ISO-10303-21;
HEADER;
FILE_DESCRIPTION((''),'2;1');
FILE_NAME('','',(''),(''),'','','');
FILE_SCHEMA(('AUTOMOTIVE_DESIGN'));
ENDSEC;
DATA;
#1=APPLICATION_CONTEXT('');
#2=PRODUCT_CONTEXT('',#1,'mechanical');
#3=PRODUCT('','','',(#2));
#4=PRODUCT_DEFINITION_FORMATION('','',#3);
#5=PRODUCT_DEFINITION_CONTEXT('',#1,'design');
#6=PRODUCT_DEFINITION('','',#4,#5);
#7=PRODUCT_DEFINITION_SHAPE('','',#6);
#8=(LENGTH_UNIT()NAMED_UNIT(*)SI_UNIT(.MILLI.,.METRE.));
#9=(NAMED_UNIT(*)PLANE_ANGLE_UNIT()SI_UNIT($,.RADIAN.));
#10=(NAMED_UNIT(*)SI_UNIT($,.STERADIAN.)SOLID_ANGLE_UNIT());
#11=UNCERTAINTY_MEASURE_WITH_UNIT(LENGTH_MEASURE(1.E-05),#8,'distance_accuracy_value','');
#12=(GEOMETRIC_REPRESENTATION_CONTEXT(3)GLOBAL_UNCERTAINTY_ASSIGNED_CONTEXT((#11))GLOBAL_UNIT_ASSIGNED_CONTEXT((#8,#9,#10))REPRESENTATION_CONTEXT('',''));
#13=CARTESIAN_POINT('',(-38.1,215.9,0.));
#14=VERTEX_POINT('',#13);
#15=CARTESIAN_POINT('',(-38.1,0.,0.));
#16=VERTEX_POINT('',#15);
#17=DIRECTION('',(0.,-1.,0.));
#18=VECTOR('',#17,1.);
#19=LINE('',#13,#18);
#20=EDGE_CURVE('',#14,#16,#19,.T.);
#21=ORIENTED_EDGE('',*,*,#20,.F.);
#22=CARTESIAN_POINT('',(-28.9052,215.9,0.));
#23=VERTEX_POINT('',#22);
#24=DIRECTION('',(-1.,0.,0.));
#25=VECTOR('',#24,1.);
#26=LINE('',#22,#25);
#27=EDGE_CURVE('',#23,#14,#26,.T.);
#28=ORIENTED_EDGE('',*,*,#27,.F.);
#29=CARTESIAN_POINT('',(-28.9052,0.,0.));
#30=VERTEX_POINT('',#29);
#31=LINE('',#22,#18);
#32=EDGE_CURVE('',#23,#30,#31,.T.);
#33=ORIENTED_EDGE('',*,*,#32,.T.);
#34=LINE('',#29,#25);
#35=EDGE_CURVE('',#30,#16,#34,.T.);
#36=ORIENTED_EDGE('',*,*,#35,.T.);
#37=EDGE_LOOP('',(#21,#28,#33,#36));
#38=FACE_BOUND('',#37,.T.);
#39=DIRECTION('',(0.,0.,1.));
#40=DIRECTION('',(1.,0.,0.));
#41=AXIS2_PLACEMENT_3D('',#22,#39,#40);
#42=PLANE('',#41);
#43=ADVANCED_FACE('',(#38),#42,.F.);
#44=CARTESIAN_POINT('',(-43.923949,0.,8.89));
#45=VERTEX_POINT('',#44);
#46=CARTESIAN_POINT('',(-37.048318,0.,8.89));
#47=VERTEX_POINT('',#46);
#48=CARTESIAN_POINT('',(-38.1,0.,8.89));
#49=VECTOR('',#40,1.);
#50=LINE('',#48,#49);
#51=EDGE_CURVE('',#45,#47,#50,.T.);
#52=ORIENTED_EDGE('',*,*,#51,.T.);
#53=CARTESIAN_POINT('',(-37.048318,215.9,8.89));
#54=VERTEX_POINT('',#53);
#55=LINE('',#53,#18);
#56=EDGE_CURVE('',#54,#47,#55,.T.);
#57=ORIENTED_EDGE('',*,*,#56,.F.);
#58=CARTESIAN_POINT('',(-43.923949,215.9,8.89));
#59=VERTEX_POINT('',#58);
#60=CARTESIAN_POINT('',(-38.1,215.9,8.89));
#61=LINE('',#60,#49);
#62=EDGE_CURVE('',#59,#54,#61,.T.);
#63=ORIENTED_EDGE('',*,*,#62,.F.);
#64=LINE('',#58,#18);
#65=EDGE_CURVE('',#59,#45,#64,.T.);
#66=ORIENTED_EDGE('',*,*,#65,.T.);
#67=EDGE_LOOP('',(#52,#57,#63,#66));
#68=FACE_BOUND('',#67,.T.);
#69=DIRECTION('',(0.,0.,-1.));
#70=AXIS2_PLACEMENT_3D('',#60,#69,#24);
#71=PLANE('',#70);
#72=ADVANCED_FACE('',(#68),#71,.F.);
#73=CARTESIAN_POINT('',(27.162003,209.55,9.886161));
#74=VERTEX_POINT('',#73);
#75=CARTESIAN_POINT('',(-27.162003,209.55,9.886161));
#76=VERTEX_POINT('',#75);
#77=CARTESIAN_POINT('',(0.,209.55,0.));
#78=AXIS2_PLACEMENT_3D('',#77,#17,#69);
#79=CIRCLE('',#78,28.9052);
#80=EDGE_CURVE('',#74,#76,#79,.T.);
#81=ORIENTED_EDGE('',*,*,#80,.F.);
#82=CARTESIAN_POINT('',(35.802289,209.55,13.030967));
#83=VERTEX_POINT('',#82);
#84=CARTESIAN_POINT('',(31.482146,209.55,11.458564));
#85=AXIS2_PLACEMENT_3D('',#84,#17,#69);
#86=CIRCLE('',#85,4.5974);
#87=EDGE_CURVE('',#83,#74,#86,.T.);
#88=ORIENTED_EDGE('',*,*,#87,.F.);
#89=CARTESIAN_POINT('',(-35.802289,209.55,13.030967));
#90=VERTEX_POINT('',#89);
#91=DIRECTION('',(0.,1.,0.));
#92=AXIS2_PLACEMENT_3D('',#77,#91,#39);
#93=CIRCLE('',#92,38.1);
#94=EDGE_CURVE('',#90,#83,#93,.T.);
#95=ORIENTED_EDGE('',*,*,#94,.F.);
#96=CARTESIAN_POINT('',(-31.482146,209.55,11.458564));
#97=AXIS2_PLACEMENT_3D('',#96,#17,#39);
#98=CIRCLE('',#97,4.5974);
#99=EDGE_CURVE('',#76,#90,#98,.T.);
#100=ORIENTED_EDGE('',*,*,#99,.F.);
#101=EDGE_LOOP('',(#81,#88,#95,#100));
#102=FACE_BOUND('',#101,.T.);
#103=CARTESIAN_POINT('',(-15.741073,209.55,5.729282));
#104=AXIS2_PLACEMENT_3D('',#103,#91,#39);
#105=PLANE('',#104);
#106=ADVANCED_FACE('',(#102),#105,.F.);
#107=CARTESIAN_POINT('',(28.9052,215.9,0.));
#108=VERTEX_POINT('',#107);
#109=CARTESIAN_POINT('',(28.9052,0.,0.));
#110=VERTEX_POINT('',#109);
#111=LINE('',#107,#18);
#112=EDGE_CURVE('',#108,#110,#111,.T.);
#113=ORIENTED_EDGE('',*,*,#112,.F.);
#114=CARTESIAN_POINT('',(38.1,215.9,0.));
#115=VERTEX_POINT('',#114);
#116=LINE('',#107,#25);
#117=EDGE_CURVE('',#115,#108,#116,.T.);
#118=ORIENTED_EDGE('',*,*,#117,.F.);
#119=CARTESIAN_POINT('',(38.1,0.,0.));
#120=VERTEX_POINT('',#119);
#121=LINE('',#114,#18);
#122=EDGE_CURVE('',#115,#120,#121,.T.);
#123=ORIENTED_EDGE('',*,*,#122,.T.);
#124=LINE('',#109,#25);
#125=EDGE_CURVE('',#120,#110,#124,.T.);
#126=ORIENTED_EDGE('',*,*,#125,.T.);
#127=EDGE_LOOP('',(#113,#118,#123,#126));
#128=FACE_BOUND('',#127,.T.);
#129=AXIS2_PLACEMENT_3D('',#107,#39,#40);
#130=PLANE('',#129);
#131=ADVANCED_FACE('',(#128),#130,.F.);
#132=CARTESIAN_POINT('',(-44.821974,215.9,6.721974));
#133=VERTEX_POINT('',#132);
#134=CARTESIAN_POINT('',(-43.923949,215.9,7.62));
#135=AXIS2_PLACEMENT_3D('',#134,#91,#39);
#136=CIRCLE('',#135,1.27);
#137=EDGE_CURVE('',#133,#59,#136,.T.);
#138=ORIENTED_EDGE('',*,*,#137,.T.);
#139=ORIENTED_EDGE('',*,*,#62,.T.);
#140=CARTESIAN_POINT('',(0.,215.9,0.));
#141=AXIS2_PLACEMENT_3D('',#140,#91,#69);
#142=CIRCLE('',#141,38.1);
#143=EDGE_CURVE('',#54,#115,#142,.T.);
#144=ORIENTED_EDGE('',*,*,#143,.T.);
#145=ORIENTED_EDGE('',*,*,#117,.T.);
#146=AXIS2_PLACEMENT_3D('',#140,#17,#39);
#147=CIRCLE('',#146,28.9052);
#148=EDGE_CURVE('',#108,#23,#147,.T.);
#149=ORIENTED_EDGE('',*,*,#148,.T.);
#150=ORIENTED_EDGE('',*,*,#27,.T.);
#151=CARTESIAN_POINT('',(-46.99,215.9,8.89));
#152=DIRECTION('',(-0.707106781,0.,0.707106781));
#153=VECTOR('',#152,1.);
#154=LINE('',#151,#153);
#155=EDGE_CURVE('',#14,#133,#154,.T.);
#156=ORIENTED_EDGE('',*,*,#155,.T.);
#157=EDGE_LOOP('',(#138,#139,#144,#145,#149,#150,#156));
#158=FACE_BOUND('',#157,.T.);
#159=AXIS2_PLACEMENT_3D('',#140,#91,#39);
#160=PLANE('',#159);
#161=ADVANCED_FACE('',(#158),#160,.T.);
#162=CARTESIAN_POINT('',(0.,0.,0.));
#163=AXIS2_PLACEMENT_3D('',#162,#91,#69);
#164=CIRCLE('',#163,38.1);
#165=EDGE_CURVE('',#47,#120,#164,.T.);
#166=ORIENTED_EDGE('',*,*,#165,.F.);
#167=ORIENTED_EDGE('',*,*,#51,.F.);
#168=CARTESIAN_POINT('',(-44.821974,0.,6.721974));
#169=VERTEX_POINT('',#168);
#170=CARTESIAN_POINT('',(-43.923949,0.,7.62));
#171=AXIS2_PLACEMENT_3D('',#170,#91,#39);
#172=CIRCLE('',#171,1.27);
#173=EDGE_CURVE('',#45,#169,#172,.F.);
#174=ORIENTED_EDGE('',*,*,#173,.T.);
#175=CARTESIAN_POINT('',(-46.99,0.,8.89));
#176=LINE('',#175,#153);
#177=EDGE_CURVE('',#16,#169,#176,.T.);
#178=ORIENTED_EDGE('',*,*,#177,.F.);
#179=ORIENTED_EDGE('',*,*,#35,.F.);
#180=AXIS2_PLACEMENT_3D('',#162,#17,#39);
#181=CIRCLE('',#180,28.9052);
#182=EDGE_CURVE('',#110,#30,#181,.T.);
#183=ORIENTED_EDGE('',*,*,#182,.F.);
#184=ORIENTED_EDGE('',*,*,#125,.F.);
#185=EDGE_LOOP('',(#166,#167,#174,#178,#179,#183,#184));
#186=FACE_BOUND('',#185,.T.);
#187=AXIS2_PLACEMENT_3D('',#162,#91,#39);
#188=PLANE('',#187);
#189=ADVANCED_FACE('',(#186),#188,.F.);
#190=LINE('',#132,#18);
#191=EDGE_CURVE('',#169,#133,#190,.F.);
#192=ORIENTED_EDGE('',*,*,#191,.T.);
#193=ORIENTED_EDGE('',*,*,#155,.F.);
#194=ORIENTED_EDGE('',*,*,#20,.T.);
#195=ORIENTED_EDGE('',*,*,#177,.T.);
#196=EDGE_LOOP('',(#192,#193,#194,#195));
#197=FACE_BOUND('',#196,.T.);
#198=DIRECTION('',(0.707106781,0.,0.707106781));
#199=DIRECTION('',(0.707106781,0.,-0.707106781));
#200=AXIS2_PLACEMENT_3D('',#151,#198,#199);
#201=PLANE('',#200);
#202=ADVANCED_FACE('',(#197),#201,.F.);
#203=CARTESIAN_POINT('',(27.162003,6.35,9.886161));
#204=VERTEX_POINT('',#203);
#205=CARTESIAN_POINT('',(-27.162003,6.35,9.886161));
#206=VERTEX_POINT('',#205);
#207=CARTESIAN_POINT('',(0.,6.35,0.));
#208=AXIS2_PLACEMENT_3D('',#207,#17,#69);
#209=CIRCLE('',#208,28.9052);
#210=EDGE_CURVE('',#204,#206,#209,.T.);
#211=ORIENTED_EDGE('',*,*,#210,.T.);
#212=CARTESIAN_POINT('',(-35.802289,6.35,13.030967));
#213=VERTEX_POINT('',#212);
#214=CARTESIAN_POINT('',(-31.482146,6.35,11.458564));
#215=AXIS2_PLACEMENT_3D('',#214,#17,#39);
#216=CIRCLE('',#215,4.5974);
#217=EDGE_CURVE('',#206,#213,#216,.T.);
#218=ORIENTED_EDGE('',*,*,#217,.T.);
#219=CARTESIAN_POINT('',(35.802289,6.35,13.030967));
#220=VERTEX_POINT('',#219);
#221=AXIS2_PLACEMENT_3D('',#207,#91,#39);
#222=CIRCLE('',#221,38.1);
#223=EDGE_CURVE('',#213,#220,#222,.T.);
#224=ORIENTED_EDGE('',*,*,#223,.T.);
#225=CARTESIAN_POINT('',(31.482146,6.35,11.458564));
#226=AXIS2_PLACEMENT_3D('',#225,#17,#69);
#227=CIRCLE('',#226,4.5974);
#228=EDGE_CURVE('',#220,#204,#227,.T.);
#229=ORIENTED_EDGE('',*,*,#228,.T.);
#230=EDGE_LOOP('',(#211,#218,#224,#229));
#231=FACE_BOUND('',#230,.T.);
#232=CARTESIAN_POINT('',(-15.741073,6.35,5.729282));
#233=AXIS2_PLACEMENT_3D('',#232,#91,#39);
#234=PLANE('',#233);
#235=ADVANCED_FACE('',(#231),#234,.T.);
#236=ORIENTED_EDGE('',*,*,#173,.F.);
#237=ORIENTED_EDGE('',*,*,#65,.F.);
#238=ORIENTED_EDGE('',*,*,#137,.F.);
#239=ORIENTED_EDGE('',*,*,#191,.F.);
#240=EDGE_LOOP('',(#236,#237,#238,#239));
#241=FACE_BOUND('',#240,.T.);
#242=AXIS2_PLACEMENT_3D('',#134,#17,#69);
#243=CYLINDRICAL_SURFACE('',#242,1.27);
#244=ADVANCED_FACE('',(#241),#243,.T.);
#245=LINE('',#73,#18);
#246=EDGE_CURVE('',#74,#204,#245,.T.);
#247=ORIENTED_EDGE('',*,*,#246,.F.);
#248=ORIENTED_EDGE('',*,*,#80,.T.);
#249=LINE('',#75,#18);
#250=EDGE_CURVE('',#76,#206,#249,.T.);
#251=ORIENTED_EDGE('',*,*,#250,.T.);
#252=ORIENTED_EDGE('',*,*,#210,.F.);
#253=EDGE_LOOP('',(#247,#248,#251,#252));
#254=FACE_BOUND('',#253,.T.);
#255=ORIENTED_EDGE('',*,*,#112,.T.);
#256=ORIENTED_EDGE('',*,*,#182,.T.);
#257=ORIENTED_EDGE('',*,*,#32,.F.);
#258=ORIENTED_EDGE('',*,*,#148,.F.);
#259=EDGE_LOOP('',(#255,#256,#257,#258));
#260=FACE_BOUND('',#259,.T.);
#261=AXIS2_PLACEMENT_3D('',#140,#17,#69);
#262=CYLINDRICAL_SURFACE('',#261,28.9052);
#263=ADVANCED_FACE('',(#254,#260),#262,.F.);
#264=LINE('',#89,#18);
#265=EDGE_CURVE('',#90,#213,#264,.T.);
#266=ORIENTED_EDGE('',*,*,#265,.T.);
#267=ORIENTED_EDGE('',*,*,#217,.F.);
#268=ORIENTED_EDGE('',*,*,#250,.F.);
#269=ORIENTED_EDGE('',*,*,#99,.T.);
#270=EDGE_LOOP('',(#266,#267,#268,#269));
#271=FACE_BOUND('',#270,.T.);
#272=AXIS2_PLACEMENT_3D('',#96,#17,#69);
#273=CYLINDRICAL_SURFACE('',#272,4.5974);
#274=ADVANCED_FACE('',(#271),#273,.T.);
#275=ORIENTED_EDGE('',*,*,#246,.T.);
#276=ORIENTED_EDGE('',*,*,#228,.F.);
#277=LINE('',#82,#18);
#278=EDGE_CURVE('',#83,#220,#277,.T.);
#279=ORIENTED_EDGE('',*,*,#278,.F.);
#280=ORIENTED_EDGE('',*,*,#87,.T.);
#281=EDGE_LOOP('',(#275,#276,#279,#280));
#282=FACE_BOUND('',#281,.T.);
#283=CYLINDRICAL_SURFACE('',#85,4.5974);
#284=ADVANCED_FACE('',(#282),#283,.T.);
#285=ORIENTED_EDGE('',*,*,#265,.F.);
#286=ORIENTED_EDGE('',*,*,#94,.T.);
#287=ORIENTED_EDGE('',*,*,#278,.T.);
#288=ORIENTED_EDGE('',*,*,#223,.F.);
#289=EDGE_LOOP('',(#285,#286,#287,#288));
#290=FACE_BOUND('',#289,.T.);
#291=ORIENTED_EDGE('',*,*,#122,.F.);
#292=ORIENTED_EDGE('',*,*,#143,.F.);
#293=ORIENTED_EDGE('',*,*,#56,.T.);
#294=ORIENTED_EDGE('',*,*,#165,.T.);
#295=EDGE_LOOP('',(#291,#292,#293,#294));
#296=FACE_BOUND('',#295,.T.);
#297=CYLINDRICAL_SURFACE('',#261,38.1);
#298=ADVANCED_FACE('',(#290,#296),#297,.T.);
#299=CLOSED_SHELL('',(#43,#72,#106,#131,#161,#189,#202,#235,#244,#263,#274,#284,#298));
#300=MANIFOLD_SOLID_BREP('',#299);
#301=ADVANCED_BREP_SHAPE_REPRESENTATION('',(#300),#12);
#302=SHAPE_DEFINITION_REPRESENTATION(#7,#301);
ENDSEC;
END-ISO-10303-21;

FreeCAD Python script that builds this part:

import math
import FreeCAD as App
import Part
import Sketcher
from FreeCAD import Vector
Q = App.Units.Quantity


def edges_at(feature, points):
    """Names of the edges that pass closest to the given points."""
    edges = feature.Shape.Edges
    near = lambda p: min(range(len(edges)), key=lambda i: edges[i].distToShape(Part.Vertex(*p))[0])
    return sorted({f"Edge{near(p) + 1}" for p in points})

doc = App.newDocument("Part")
body = doc.addObject("PartDesign::Body", "Body")

# Sketch on XZ plane
sketch1 = body.newObject("Sketcher::SketchObject", "Sketch")
sketch1.AttachmentSupport = (doc.getObject("XZ_Plane"), [""])
sketch1.MapMode = "FlatFace"
sketch1.addGeometry(Part.LineSegment(Vector(-29, 0, 0), Vector(-38, 0, 0)), False)
sketch1.addGeometry(Part.LineSegment(Vector(-38, 0, 0), Vector(-47, 9, 0)), False)
sketch1.addGeometry(Part.LineSegment(Vector(-47, 9, 0), Vector(-37, 9, 0)), False)
sketch1.addGeometry(Part.ArcOfCircle(Part.Circle(Vector(0, 0, 0), Vector(0, 0, 1), 38), math.radians(0), math.radians(167)), False)
sketch1.addGeometry(Part.LineSegment(Vector(38, 0, 0), Vector(29, 0, 0)), False)
sketch1.addGeometry(Part.ArcOfCircle(Part.Circle(Vector(0, 0, 0), Vector(0, 0, 1), 29), math.radians(0), math.radians(180)), False)
sketch1.addConstraint(Sketcher.Constraint("Coincident", 0, 2, 1, 1))
sketch1.addConstraint(Sketcher.Constraint("Coincident", 1, 2, 2, 1))
sketch1.addConstraint(Sketcher.Constraint("Coincident", 2, 2, 3, 2))
sketch1.addConstraint(Sketcher.Constraint("Coincident", 3, 1, 4, 1))
sketch1.addConstraint(Sketcher.Constraint("Coincident", 4, 2, 5, 1))
sketch1.addConstraint(Sketcher.Constraint("Coincident", 5, 2, 0, 1))
sketch1.addConstraint(Sketcher.Constraint("Horizontal", 0))
sketch1.addConstraint(Sketcher.Constraint("Horizontal", 2))
sketch1.addConstraint(Sketcher.Constraint("Horizontal", 4))
sketch1.addConstraint(Sketcher.Constraint("Coincident", 3, 3, -1, 1))
sketch1.addConstraint(Sketcher.Constraint("Coincident", 5, 3, -1, 1))
sketch1.addConstraint(Sketcher.Constraint("Symmetric", 0, 2, 3, 1, -1, 1))
sketch1.addConstraint(Sketcher.Constraint("PointOnObject", 0, 2, -1))
sketch1.addConstraint(Sketcher.Constraint("Radius", 3, Q("1.5 in")))
sketch1.addConstraint(Sketcher.Constraint("Angle", 1, Q("135 deg")))
sketch1.addConstraint(Sketcher.Constraint("Radius", 5, Q("1.138 in")))
sketch1.addConstraint(Sketcher.Constraint("DistanceX", 1, 2, -1, 1, Q("1.85 in")))
pad1 = body.newObject("PartDesign::Pad", "Pad")
pad1.Profile = sketch1
pad1.Length = Q("8.5 in")
pad1.Reversed = True
doc.recompute()

fillet = body.newObject("PartDesign::Fillet", "Fillet")
fillet.Base = (pad1, edges_at(pad1, [(-46.99, 107.95, 8.89)]))
fillet.Radius = Q("0.05 in")

# Sketch on XZ plane
sketch2 = body.newObject("Sketcher::SketchObject", "Sketch001")
sketch2.AttachmentSupport = (doc.getObject("XZ_Plane"), [""])
sketch2.MapMode = "FlatFace"
sketch2.AttachmentOffset = App.Placement(Vector(0, 0, -0.25 * 25.4), App.Rotation())
sketch2.addGeometry(Part.ArcOfCircle(Part.Circle(Vector(0, 0, 0), Vector(0, 0, 1), 38.1), math.radians(20), math.radians(160)), False)
sketch2.addGeometry(Part.ArcOfCircle(Part.Circle(Vector(31.5, 11.5, 0), Vector(0, 0, 1), 4.6), math.radians(20), math.radians(200)), False)
sketch2.addGeometry(Part.ArcOfCircle(Part.Circle(Vector(0, 0, 0), Vector(0, 0, 1), 28.9), math.radians(20), math.radians(160)), False)
sketch2.addGeometry(Part.ArcOfCircle(Part.Circle(Vector(-31.5, 11.5, 0), Vector(0, 0, 1), 4.6), math.radians(-20), math.radians(160)), False)
sketch2.addConstraint(Sketcher.Constraint("Tangent", 0, 1, 1, 1))
sketch2.addConstraint(Sketcher.Constraint("Tangent", 1, 2, 2, 1))
sketch2.addConstraint(Sketcher.Constraint("Tangent", 2, 2, 3, 1))
sketch2.addConstraint(Sketcher.Constraint("Tangent", 3, 2, 0, 2))
sketch2.addConstraint(Sketcher.Constraint("Coincident", 0, 3, -1, 1))
sketch2.addConstraint(Sketcher.Constraint("Coincident", 2, 3, -1, 1))
sketch2.addConstraint(Sketcher.Constraint("Horizontal", 1, 3, 3, 3))
sketch2.addConstraint(Sketcher.Constraint("Radius", 0, Q("1.5 in")))
sketch2.addConstraint(Sketcher.Constraint("Radius", 1, Q("0.181 in")))
sketch2.addConstraint(Sketcher.Constraint("DistanceX", -1, 1, 0, 1, Q("35.802289 mm")))
pocket1 = body.newObject("PartDesign::Pocket", "Pocket")
pocket1.Profile = sketch2
pocket1.Length = Q("8 in")

doc.recompute()
